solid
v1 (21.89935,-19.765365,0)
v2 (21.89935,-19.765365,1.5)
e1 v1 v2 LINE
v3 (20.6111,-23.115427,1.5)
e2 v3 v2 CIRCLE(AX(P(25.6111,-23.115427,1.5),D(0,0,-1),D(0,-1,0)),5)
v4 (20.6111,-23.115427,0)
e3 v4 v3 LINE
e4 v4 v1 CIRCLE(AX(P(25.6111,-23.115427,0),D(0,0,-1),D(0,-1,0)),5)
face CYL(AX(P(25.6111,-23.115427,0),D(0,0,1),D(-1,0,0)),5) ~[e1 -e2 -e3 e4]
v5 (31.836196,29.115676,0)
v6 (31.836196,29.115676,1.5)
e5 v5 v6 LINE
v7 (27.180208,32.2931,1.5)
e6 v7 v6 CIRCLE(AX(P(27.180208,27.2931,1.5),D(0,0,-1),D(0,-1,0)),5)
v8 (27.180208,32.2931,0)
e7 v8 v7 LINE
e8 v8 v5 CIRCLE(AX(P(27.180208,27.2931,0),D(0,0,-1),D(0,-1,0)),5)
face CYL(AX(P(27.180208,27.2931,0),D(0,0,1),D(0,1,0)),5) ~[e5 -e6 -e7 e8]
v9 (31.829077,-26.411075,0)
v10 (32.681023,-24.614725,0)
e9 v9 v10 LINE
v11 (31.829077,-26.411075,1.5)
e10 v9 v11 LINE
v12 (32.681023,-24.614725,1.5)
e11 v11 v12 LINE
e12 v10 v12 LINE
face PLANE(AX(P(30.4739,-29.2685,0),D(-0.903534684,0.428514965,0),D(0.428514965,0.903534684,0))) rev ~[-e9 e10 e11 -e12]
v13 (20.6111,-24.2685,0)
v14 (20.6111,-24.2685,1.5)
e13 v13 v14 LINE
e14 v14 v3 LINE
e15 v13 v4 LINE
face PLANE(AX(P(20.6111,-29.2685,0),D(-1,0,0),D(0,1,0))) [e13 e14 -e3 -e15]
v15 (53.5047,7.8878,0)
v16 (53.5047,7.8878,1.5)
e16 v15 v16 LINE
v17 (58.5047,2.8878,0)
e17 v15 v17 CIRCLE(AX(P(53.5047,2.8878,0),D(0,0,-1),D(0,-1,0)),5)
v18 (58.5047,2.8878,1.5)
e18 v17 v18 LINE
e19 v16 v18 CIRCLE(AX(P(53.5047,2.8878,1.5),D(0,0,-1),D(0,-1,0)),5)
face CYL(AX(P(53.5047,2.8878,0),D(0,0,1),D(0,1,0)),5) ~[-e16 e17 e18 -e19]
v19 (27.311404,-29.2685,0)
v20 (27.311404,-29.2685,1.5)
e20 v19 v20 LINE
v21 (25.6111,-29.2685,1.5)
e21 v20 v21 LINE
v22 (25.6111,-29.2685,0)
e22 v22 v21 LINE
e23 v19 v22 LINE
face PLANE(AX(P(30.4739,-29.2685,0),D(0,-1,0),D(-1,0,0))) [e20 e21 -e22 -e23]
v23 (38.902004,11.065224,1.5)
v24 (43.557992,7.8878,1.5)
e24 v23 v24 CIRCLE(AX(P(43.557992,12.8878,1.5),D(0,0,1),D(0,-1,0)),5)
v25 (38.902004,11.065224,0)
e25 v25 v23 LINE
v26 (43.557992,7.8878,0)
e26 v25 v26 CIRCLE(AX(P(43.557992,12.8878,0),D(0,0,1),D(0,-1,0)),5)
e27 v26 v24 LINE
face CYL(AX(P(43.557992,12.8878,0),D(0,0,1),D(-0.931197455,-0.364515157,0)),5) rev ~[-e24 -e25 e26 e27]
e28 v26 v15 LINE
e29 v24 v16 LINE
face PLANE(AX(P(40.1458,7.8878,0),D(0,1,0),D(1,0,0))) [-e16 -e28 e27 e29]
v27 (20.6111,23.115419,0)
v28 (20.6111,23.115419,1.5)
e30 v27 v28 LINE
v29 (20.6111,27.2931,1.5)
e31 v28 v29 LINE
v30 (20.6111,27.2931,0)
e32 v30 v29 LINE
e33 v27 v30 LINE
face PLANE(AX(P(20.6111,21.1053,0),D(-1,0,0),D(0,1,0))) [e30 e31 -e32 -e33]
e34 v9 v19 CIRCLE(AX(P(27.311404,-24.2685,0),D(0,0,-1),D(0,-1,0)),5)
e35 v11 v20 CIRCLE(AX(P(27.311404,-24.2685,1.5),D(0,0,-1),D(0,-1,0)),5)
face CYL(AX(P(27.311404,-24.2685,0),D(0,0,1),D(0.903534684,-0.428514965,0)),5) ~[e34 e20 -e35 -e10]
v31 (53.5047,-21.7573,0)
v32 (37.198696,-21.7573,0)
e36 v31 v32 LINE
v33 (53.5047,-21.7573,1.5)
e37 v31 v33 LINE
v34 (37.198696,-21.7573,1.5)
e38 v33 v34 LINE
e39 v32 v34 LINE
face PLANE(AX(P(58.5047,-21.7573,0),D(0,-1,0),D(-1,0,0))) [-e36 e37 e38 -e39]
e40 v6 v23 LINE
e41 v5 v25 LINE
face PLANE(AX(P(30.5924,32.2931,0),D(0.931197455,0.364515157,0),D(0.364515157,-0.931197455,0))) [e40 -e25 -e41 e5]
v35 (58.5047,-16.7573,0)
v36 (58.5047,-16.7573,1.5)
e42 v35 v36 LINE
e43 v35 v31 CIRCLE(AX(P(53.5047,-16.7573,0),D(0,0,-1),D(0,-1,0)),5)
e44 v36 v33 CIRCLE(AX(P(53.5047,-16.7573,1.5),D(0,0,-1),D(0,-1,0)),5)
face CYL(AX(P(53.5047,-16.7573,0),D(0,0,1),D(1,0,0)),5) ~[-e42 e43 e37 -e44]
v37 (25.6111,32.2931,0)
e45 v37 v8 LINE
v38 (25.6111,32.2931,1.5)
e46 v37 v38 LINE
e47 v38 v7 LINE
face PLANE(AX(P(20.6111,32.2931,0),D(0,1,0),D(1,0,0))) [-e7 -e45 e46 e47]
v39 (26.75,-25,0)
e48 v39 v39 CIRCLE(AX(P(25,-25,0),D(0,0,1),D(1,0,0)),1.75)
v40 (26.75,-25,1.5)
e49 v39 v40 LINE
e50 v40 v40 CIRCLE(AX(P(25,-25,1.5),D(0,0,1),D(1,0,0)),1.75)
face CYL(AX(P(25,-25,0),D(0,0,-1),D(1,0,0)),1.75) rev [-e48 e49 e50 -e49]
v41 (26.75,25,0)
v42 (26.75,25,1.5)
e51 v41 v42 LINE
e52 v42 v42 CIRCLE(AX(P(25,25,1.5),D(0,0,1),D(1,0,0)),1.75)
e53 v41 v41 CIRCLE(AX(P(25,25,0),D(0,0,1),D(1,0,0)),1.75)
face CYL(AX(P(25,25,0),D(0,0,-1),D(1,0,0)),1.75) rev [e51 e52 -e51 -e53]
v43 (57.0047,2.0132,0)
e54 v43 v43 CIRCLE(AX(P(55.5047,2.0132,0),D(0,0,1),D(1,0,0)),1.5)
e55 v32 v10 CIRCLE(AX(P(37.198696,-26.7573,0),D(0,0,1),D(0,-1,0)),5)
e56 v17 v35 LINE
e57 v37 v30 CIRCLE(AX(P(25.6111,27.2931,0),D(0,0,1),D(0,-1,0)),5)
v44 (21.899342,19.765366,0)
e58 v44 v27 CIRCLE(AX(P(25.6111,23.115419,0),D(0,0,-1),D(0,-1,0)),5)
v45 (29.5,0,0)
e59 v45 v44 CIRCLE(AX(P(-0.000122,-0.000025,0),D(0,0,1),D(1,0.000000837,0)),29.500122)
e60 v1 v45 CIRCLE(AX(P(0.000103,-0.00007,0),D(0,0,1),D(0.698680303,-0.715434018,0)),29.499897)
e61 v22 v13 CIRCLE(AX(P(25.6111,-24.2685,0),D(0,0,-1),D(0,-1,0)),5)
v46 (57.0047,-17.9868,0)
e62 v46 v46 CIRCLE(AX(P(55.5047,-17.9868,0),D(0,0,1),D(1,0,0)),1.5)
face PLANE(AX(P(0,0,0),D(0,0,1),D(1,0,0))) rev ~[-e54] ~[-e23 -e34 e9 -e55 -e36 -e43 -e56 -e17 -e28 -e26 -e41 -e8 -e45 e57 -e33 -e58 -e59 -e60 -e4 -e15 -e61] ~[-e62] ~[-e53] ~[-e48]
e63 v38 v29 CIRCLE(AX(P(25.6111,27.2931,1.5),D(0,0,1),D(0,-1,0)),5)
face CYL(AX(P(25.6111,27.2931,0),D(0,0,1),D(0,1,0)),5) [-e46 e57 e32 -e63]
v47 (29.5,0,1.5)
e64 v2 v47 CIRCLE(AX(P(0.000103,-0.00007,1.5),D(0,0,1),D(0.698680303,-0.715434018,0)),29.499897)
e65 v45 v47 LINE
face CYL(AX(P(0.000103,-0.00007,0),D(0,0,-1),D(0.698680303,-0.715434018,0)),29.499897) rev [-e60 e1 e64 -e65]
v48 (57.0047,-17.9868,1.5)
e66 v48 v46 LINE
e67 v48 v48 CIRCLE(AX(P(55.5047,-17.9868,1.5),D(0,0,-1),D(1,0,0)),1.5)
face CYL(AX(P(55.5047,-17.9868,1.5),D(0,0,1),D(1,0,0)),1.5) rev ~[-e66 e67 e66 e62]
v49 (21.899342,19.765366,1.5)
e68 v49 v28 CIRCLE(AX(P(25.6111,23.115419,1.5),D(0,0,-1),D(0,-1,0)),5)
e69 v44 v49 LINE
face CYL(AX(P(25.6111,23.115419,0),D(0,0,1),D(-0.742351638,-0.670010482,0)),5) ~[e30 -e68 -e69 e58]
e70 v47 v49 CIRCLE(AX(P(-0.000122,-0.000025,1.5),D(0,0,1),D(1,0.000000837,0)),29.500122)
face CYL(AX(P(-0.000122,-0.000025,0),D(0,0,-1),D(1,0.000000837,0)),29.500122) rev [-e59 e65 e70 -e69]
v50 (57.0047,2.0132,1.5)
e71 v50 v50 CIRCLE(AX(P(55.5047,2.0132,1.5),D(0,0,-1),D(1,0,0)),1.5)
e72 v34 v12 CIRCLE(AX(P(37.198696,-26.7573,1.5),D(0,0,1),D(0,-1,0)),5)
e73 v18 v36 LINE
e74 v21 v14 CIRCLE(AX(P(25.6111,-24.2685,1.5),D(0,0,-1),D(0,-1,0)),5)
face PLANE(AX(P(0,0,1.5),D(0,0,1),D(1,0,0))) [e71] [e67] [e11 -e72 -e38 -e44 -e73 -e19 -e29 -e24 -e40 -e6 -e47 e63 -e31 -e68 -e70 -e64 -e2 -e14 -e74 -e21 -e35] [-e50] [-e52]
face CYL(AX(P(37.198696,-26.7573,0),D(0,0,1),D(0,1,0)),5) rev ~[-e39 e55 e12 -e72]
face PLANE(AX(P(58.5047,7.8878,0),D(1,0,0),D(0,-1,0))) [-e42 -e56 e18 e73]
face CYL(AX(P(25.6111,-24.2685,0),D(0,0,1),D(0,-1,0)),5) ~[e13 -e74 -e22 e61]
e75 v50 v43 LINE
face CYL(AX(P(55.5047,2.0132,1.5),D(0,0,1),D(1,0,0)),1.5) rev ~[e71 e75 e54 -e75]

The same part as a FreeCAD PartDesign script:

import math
import FreeCAD as App
import Part
import Sketcher
from FreeCAD import Vector
Q = App.Units.Quantity


def edges_at(feature, points):
    """Names of the edges that pass closest to the given points."""
    edges = feature.Shape.Edges
    near = lambda p: min(range(len(edges)), key=lambda i: edges[i].distToShape(Part.Vertex(*p))[0])
    return sorted({f"Edge{near(p) + 1}" for p in points})

doc = App.newDocument("Part")
params = doc.addObject("Spreadsheet::Sheet", "Params")
for row, (alias, value) in enumerate([
    ("sketch1_diameter", "3.5 mm"),
    ("sketch1_radius", "29.5 mm"),
    ("pad1_length", "1.5 mm"),
    ("fillet_radius", "5 mm"),
    ("sketch2_diameter", "3 mm"),
    ("pocket1_length", "1.5 mm"),
], start=1):
    params.set(f"A{row}", alias)
    params.set(f"B{row}", "=" + value)
    params.setAlias(f"B{row}", alias)

body = doc.addObject("PartDesign::Body", "Body")

sketch1 = body.newObject("Sketcher::SketchObject", "Sketch")
sketch1.AttachmentSupport = (doc.getObject("XY_Plane"), [""])
sketch1.MapMode = "FlatFace"
sketch1.addGeometry(Part.LineSegment(Vector(30.6, 32.3, 0), Vector(20.6, 32.3, 0)), False)
sketch1.addGeometry(Part.LineSegment(Vector(20.6, 32.3, 0), Vector(20.6, 21.1, 0)), False)
sketch1.addGeometry(Part.ArcOfCircle(Part.Circle(Vector(0, 0, 0), Vector(0, 0, 1), 29.5), math.radians(0), math.radians(46)), False)
sketch1.addGeometry(Part.ArcOfCircle(Part.Circle(Vector(0, 0, 0), Vector(0, 0, 1), 29.5), math.radians(-46), math.radians(0)), False)
sketch1.addGeometry(Part.LineSegment(Vector(20.6, -21.1, 0), Vector(20.6, -29.3, 0)), False)
sketch1.addGeometry(Part.LineSegment(Vector(20.6, -29.3, 0), Vector(30.5, -29.3, 0)), False)
sketch1.addGeometry(Part.LineSegment(Vector(30.5, -29.3, 0), Vector(34, -21.8, 0)), False)
sketch1.addGeometry(Part.LineSegment(Vector(34, -21.8, 0), Vector(58.5, -21.8, 0)), False)
sketch1.addGeometry(Part.LineSegment(Vector(58.5, -21.8, 0), Vector(58.5, 7.9, 0)), False)
sketch1.addGeometry(Part.LineSegment(Vector(58.5, 7.9, 0), Vector(40.1, 7.9, 0)), False)
sketch1.addGeometry(Part.LineSegment(Vector(40.1, 7.9, 0), Vector(30.6, 32.3, 0)), False)
sketch1.addGeometry(Part.Circle(Vector(25, -25, 0), Vector(0, 0, 1), 1.8), False)
sketch1.addGeometry(Part.Circle(Vector(25, 25, 0), Vector(0, 0, 1), 1.8), False)
sketch1.addConstraint(Sketcher.Constraint("Coincident", 0, 2, 1, 1))
sketch1.addConstraint(Sketcher.Constraint("Coincident", 1, 2, 2, 2))
sketch1.addConstraint(Sketcher.Constraint("Tangent", 2, 1, 3, 2))
sketch1.addConstraint(Sketcher.Constraint("Coincident", 3, 1, 4, 1))
sketch1.addConstraint(Sketcher.Constraint("Coincident", 4, 2, 5, 1))
sketch1.addConstraint(Sketcher.Constraint("Coincident", 5, 2, 6, 1))
sketch1.addConstraint(Sketcher.Constraint("Coincident", 6, 2, 7, 1))
sketch1.addConstraint(Sketcher.Constraint("Coincident", 7, 2, 8, 1))
sketch1.addConstraint(Sketcher.Constraint("Coincident", 8, 2, 9, 1))
sketch1.addConstraint(Sketcher.Constraint("Coincident", 9, 2, 10, 1))
sketch1.addConstraint(Sketcher.Constraint("Coincident", 10, 2, 0, 1))
sketch1.addConstraint(Sketcher.Constraint("Horizontal", 0))
sketch1.addConstraint(Sketcher.Constraint("Vertical", 1))
sketch1.addConstraint(Sketcher.Constraint("Vertical", 4))
sketch1.addConstraint(Sketcher.Constraint("Horizontal", 5))
sketch1.addConstraint(Sketcher.Constraint("Horizontal", 7))
sketch1.addConstraint(Sketcher.Constraint("Vertical", 8))
sketch1.addConstraint(Sketcher.Constraint("Horizontal", 9))
sketch1.addConstraint(Sketcher.Constraint("Coincident", 2, 3, -1, 1))
sketch1.addConstraint(Sketcher.Constraint("Equal", 2, 3))
sketch1.addConstraint(Sketcher.Constraint("Equal", 11, 12))
sketch1.addConstraint(Sketcher.Constraint("Symmetric", 11, 3, 12, 3, -1))
sketch1.addConstraint(Sketcher.Constraint("PointOnObject", 2, 1, -1))
sketch1.addConstraint(Sketcher.Constraint("Vertical", 1, 2, 3, 1))
sketch1.addConstraint(Sketcher.Constraint("DistanceX", -1, 1, 11, 3, Q("25 mm")))
sketch1.addConstraint(Sketcher.Constraint("DistanceY", 11, 3, -1, 1, Q("25 mm")))
sketch1.addConstraint(Sketcher.Constraint("Diameter", 11, Q("3.5 mm")))
sketch1.addConstraint(Sketcher.Constraint("Radius", 2, Q("29.5 mm")))
sketch1.addConstraint(Sketcher.Constraint("DistanceX", 9, 2, 9, 1, Q("18.359 mm")))
sketch1.addConstraint(Sketcher.Constraint("DistanceY", 8, 1, 8, 2, Q("29.645 mm")))
sketch1.addConstraint(Sketcher.Constraint("DistanceX", 0, 2, 0, 1, Q("9.9813 mm")))
sketch1.addConstraint(Sketcher.Constraint("DistanceX", 5, 1, 5, 2, Q("9.8628 mm")))
sketch1.addConstraint(Sketcher.Constraint("DistanceX", 7, 1, 7, 2, Q("24.4685 mm")))
sketch1.addConstraint(Sketcher.Constraint("DistanceY", 1, 2, 1, 1, Q("11.1878 mm")))
sketch1.addConstraint(Sketcher.Constraint("DistanceY", 4, 2, 4, 1, Q("8.1632 mm")))
sketch1.addConstraint(Sketcher.Constraint("DistanceX", -1, 1, 0, 2, Q("20.611 mm")))
sketch1.addConstraint(Sketcher.Constraint("DistanceX", 3, 1, 6, 2, Q("13.425 mm")))
sketch1.addConstraint(Sketcher.Constraint("DistanceY", 6, 2, 3, 1, Q("0.652 mm")))
sketch1.setExpression("Constraints[26]", "Params.sketch1_diameter")
sketch1.setExpression("Constraints[27]", "Params.sketch1_radius")
pad1 = body.newObject("PartDesign::Pad", "Pad")
pad1.Profile = sketch1
pad1.setExpression("Length", "Params.pad1_length")
doc.recompute()

fillet = body.newObject("PartDesign::Fillet", "Fillet")
fillet.Base = (pad1, edges_at(pad1, [
    (20.611, -29.268, 0.75),
    (20.611, 32.293, 0.75),
    (20.611, -21.105, 0.75),
    (20.611, 21.105, 0.75),
    (30.592, 32.293, 0.75),
    (40.146, 7.888, 0.75),
    (34.036, -21.757, 0.75),
    (58.505, -21.757, 0.75),
    (58.505, 7.888, 0.75),
    (30.474, -29.268, 0.75),
]))
fillet.setExpression("Radius", "Params.fillet_radius")

sketch2 = body.newObject("Sketcher::SketchObject", "Sketch001")
sketch2.AttachmentSupport = (doc.getObject("XY_Plane"), [""])
sketch2.MapMode = "FlatFace"
sketch2.AttachmentOffset = App.Placement(Vector(0, 0, 1.5), App.Rotation())
sketch2.addGeometry(Part.Circle(Vector(55.5, -18, 0), Vector(0, 0, 1), 1.5), False)
sketch2.addGeometry(Part.Circle(Vector(55.5, 2, 0), Vector(0, 0, 1), 1.5), False)
sketch2.addConstraint(Sketcher.Constraint("Equal", 0, 1))
sketch2.addConstraint(Sketcher.Constraint("Vertical", 0, 3, 1, 3))
sketch2.addConstraint(Sketcher.Constraint("Diameter", 0, Q("3 mm")))
sketch2.addConstraint(Sketcher.Constraint("DistanceY", 0, 3, 1, 3, Q("20 mm")))
sketch2.addConstraint(Sketcher.Constraint("DistanceX", -1, 1, 0, 3, Q("55.5047 mm")))
sketch2.addConstraint(Sketcher.Constraint("DistanceY", 0, 3, -1, 1, Q("17.9868 mm")))
sketch2.setExpression("Constraints[2]", "Params.sketch2_diameter")
pocket1 = body.newObject("PartDesign::Pocket", "Pocket")
pocket1.Profile = sketch2
pocket1.setExpression("Length", "Params.pocket1_length")

doc.recompute()
